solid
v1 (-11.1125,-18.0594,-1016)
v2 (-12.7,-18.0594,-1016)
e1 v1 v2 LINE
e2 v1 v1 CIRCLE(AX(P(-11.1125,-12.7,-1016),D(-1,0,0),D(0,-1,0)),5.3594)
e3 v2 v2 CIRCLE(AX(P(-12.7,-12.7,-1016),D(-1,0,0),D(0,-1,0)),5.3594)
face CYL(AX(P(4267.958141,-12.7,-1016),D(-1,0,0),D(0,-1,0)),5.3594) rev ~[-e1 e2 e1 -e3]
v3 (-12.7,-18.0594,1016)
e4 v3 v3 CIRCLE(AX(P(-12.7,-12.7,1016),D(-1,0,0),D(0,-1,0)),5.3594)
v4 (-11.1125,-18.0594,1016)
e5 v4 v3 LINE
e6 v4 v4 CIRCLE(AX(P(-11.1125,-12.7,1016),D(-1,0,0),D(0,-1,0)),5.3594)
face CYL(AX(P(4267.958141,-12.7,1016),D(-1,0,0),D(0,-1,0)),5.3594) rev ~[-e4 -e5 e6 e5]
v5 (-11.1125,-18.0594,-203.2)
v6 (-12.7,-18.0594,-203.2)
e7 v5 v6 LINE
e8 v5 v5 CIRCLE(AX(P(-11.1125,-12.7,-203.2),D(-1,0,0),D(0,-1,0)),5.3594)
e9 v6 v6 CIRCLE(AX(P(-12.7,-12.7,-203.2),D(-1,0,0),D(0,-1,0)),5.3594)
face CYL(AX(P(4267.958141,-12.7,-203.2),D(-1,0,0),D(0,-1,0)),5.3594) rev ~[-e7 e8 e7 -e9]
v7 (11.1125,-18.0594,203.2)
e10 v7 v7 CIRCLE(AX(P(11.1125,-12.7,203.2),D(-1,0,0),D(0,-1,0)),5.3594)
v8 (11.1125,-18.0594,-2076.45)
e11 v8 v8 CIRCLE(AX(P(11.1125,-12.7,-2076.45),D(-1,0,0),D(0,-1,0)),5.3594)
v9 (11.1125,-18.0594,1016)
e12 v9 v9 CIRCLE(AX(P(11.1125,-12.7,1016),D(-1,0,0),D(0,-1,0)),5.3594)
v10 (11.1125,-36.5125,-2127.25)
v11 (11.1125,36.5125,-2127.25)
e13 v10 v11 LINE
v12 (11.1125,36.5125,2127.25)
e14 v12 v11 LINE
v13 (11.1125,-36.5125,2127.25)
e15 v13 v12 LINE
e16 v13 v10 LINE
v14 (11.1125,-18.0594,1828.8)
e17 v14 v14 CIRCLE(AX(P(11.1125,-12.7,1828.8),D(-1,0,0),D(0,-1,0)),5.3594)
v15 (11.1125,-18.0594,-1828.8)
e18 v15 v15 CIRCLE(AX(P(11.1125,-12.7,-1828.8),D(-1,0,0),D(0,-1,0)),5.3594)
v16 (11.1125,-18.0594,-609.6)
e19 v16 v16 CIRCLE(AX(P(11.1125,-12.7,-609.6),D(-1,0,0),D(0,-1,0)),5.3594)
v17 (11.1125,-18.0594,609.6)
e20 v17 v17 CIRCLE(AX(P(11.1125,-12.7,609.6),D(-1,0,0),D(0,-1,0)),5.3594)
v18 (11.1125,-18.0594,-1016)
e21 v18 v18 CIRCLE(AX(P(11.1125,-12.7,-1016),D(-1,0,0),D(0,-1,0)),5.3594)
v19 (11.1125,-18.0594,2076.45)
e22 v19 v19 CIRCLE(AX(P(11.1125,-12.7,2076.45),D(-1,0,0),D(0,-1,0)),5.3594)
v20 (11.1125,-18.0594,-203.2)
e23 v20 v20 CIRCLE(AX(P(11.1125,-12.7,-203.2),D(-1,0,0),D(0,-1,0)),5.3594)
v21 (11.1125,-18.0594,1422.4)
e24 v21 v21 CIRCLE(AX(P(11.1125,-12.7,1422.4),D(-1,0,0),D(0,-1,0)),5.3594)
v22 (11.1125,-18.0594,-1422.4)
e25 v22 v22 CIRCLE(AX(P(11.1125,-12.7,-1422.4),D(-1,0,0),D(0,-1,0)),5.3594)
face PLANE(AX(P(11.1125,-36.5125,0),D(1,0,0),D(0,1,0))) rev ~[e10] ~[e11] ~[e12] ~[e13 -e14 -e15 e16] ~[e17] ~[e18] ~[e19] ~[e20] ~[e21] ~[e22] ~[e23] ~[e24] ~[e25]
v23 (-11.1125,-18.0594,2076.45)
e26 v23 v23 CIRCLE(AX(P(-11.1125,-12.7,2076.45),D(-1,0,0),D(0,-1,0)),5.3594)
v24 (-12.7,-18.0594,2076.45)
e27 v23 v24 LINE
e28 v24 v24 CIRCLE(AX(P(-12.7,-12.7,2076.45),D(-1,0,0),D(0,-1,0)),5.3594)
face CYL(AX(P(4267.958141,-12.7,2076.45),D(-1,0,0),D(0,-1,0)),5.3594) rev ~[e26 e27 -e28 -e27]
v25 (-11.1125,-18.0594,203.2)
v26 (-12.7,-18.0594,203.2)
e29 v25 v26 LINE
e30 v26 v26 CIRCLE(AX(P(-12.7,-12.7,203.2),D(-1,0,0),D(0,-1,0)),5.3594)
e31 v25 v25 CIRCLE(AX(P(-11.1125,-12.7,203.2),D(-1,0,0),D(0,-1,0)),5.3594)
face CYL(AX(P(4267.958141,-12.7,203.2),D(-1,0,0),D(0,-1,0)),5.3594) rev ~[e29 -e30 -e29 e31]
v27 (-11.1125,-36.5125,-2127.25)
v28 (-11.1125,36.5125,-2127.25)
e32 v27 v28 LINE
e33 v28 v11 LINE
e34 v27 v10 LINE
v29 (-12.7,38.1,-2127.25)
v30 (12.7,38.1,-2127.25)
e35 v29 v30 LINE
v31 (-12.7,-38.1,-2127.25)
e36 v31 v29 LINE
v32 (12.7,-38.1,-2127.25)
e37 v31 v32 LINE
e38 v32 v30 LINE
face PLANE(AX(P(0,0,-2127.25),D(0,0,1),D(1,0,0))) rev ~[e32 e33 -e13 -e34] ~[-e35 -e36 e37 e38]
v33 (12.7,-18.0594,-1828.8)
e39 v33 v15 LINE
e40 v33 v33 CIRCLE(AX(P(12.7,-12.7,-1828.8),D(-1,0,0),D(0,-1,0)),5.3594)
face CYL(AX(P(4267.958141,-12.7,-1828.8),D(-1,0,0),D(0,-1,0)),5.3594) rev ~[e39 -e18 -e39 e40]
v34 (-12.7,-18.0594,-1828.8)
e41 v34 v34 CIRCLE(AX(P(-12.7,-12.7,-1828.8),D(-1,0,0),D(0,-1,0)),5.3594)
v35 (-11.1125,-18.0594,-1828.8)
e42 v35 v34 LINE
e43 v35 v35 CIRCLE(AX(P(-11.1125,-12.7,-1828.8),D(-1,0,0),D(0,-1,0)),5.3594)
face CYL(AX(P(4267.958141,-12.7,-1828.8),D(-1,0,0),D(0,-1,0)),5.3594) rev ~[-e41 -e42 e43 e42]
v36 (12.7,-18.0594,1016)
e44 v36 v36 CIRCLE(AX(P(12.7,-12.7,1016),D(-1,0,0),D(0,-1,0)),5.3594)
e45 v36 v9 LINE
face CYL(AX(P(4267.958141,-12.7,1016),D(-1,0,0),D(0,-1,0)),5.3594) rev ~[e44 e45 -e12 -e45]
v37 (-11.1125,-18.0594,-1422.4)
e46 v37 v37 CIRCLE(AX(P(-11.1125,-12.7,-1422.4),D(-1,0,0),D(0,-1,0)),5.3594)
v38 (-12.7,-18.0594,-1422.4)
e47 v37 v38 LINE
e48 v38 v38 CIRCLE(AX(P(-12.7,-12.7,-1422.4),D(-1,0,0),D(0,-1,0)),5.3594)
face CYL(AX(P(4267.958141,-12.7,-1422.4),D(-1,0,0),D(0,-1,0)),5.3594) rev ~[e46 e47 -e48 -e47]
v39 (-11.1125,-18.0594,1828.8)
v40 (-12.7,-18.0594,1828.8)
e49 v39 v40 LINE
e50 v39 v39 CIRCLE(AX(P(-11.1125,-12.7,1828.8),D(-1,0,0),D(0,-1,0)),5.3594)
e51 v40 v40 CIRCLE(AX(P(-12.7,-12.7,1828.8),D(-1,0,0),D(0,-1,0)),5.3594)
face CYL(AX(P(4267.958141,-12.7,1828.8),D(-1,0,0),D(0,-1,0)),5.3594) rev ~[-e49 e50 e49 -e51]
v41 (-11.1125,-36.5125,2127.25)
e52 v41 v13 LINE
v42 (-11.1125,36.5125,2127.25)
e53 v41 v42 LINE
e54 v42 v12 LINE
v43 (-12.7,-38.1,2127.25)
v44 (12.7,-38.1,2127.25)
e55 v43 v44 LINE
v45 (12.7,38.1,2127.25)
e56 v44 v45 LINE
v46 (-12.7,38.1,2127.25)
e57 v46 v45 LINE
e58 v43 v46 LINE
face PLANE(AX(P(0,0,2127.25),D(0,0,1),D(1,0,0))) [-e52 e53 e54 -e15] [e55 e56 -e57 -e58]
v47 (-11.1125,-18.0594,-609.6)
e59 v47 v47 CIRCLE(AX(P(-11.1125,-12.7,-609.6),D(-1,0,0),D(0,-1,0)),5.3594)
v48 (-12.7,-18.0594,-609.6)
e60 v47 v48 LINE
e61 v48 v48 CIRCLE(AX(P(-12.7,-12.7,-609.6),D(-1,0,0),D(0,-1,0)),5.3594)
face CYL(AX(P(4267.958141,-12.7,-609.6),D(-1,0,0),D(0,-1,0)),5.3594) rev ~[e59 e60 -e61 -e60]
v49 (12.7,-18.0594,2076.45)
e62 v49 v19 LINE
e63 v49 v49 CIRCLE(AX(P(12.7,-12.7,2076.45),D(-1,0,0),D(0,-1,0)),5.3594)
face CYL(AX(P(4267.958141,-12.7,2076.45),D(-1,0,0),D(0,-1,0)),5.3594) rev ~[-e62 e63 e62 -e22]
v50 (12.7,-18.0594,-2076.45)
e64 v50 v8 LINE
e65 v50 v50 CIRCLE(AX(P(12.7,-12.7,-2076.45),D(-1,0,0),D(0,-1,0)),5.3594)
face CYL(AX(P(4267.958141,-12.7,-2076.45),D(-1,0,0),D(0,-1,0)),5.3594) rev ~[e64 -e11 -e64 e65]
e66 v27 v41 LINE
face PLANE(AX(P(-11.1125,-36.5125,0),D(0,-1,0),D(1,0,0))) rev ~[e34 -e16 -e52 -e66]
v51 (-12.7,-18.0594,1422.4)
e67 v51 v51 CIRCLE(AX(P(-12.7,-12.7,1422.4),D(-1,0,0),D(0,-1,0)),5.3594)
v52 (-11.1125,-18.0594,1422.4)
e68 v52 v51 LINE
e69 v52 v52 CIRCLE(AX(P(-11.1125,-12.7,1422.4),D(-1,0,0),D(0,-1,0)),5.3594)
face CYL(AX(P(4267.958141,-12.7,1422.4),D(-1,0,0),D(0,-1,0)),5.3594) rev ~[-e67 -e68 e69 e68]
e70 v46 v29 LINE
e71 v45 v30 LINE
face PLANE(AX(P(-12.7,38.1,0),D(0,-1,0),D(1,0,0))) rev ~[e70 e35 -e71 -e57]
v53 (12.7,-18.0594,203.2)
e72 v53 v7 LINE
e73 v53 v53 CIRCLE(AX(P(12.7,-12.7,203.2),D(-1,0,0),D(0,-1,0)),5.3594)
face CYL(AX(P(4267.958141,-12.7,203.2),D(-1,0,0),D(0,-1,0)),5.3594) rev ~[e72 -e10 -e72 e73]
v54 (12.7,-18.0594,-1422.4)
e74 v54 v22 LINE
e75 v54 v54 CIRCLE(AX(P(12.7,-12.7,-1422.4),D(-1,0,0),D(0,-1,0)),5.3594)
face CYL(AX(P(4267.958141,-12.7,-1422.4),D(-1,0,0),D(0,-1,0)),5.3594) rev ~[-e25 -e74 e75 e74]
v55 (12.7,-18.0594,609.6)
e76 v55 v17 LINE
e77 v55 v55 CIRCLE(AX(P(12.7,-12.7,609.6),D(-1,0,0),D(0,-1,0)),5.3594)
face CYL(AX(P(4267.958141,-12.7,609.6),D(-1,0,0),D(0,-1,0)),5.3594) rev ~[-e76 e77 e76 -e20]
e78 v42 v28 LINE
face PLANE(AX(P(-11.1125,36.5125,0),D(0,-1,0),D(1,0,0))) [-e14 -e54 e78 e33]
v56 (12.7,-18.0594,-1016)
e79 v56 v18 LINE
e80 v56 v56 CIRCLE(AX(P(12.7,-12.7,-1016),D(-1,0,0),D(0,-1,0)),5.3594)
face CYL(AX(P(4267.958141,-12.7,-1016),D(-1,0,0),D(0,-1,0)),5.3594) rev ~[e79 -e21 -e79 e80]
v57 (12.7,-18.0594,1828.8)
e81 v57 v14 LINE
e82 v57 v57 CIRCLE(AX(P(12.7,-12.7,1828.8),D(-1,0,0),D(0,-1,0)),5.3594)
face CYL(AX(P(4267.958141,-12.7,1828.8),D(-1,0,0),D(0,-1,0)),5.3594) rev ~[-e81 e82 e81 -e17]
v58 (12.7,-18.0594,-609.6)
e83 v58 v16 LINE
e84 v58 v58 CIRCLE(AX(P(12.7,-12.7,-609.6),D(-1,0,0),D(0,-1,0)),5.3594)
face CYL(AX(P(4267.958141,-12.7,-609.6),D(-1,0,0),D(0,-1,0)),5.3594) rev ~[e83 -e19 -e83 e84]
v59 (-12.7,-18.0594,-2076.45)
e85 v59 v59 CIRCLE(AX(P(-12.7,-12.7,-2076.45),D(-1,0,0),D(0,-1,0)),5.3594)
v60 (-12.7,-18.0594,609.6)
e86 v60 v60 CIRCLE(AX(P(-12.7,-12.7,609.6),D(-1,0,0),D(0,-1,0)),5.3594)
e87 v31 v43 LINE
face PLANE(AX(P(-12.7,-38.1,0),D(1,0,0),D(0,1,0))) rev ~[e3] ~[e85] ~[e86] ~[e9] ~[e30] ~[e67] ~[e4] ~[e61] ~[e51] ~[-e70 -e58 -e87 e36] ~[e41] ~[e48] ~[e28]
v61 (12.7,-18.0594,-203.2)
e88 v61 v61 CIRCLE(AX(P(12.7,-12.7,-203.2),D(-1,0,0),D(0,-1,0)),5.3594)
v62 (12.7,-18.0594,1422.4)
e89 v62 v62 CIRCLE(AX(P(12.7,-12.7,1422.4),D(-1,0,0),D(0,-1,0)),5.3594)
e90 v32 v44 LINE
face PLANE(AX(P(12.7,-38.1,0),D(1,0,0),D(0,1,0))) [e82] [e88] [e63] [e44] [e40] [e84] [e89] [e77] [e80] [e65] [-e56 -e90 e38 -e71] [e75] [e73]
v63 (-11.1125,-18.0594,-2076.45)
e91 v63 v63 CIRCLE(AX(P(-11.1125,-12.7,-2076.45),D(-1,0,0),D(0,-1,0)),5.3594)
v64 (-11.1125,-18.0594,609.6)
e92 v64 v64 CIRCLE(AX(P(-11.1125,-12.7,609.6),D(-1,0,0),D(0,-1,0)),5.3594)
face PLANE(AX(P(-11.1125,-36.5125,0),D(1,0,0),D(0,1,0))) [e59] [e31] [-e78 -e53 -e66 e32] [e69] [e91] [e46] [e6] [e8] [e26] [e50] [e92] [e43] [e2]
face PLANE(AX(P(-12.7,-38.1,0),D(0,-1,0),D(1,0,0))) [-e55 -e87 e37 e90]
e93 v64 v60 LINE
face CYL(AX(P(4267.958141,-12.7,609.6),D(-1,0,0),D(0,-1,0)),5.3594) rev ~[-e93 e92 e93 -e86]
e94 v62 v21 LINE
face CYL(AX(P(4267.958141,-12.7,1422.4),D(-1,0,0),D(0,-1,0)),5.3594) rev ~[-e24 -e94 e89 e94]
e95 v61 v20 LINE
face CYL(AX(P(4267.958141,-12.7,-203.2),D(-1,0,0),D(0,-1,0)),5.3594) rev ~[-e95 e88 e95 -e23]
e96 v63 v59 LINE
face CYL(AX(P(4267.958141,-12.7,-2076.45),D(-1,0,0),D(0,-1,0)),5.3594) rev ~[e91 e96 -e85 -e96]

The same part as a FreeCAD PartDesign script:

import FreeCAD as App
import Part
import Sketcher
Q = App.Units.Quantity

doc = App.newDocument("Part")
params = doc.addObject("Spreadsheet::Sheet", "Params")
for row, (alias, value) in enumerate([
    ("sketch1_width", "1 in"),
    ("sketch1_height", "3 in"),
    ("sketch1_width2", "0.875 in"),
    ("sketch1_height2", "2.875 in"),
    ("pad1_length", "167.5 in"),
    ("sketch2_diameter", "0.422 in"),
    ("hole_diameter", "0.422 in"),
], start=1):
    params.set(f"A{row}", alias)
    params.set(f"B{row}", "=" + value)
    params.setAlias(f"B{row}", alias)

body = doc.addObject("PartDesign::Body", "Body")

# Sketch on XY plane
sketch1 = doc.addObject("Sketcher::SketchObject", "Sketch")
body.addObject(sketch1)
sketch1.AttachmentSupport = (doc.XY_Plane, [""])
sketch1.MapMode = "FlatFace"
sketch1.addGeometry(Part.LineSegment(App.Vector(-13, 38, 0), App.Vector(-13, -38, 0)), False)
sketch1.addGeometry(Part.LineSegment(App.Vector(-13, -38, 0), App.Vector(13, -38, 0)), False)
sketch1.addGeometry(Part.LineSegment(App.Vector(13, -38, 0), App.Vector(13, 38, 0)), False)
sketch1.addGeometry(Part.LineSegment(App.Vector(13, 38, 0), App.Vector(-13, 38, 0)), False)
sketch1.addGeometry(Part.LineSegment(App.Vector(11, -37, 0), App.Vector(-11, -37, 0)), False)
sketch1.addGeometry(Part.LineSegment(App.Vector(-11, -37, 0), App.Vector(-11, 37, 0)), False)
sketch1.addGeometry(Part.LineSegment(App.Vector(-11, 37, 0), App.Vector(11, 37, 0)), False)
sketch1.addGeometry(Part.LineSegment(App.Vector(11, 37, 0), App.Vector(11, -37, 0)), False)
sketch1.addConstraint(Sketcher.Constraint("Coincident", 0, 2, 1, 1))
sketch1.addConstraint(Sketcher.Constraint("Coincident", 1, 2, 2, 1))
sketch1.addConstraint(Sketcher.Constraint("Coincident", 2, 2, 3, 1))
sketch1.addConstraint(Sketcher.Constraint("Coincident", 3, 2, 0, 1))
sketch1.addConstraint(Sketcher.Constraint("Coincident", 4, 2, 5, 1))
sketch1.addConstraint(Sketcher.Constraint("Coincident", 5, 2, 6, 1))
sketch1.addConstraint(Sketcher.Constraint("Coincident", 6, 2, 7, 1))
sketch1.addConstraint(Sketcher.Constraint("Coincident", 7, 2, 4, 1))
sketch1.addConstraint(Sketcher.Constraint("Vertical", 0))
sketch1.addConstraint(Sketcher.Constraint("Horizontal", 1))
sketch1.addConstraint(Sketcher.Constraint("Vertical", 2))
sketch1.addConstraint(Sketcher.Constraint("Horizontal", 3))
sketch1.addConstraint(Sketcher.Constraint("Horizontal", 4))
sketch1.addConstraint(Sketcher.Constraint("Vertical", 5))
sketch1.addConstraint(Sketcher.Constraint("Horizontal", 6))
sketch1.addConstraint(Sketcher.Constraint("Vertical", 7))
sketch1.addConstraint(Sketcher.Constraint("Symmetric", 0, 2, 2, 2, -1, 1))
sketch1.addConstraint(Sketcher.Constraint("Symmetric", 4, 2, 6, 2, -1, 1))
sketch1.addConstraint(Sketcher.Constraint("DistanceX", 1, 1, 1, 2, Q("1 in")))
sketch1.addConstraint(Sketcher.Constraint("DistanceY", 0, 2, 0, 1, Q("3 in")))
sketch1.addConstraint(Sketcher.Constraint("DistanceX", 4, 2, 4, 1, Q("0.875 in")))
sketch1.addConstraint(Sketcher.Constraint("DistanceY", 5, 1, 5, 2, Q("2.875 in")))
sketch1.setExpression("Constraints[18]", "Params.sketch1_width")
sketch1.setExpression("Constraints[19]", "Params.sketch1_height")
sketch1.setExpression("Constraints[20]", "Params.sketch1_width2")
sketch1.setExpression("Constraints[21]", "Params.sketch1_height2")
pad1 = doc.addObject("PartDesign::Pad", "Pad")
body.addObject(pad1)
pad1.Profile = sketch1
pad1.setExpression("Length", "Params.pad1_length")
pad1.Midplane = True

# Sketch on YZ plane
sketch2 = doc.addObject("Sketcher::SketchObject", "Sketch001")
body.addObject(sketch2)
sketch2.AttachmentSupport = (doc.YZ_Plane, [""])
sketch2.MapMode = "FlatFace"
sketch2.AttachmentOffset = App.Placement(App.Vector(0, 0, 0.5 * 25.4), App.Rotation())
sketch2.addGeometry(Part.Circle(App.Vector(-13, 2076, 0), App.Vector(0, 0, 1), 5), False)
sketch2.addGeometry(Part.Circle(App.Vector(-13, 1829, 0), App.Vector(0, 0, 1), 5), False)
sketch2.addGeometry(Part.Circle(App.Vector(-13, 1422, 0), App.Vector(0, 0, 1), 5), False)
sketch2.addGeometry(Part.Circle(App.Vector(-13, 1016, 0), App.Vector(0, 0, 1), 5), False)
sketch2.addGeometry(Part.Circle(App.Vector(-13, 610, 0), App.Vector(0, 0, 1), 5), False)
sketch2.addGeometry(Part.Circle(App.Vector(-13, 203, 0), App.Vector(0, 0, 1), 5), False)
sketch2.addGeometry(Part.Circle(App.Vector(-13, -203, 0), App.Vector(0, 0, 1), 5), False)
sketch2.addGeometry(Part.Circle(App.Vector(-13, -610, 0), App.Vector(0, 0, 1), 5), False)
sketch2.addGeometry(Part.Circle(App.Vector(-13, -1016, 0), App.Vector(0, 0, 1), 5), False)
sketch2.addGeometry(Part.Circle(App.Vector(-13, -1422, 0), App.Vector(0, 0, 1), 5), False)
sketch2.addGeometry(Part.Circle(App.Vector(-13, -1829, 0), App.Vector(0, 0, 1), 5), False)
sketch2.addGeometry(Part.Circle(App.Vector(-13, -2076, 0), App.Vector(0, 0, 1), 5), False)
sketch2.addConstraint(Sketcher.Constraint("Equal", 0, 1))
sketch2.addConstraint(Sketcher.Constraint("Equal", 1, 2))
sketch2.addConstraint(Sketcher.Constraint("Equal", 2, 3))
sketch2.addConstraint(Sketcher.Constraint("Equal", 3, 4))
sketch2.addConstraint(Sketcher.Constraint("Equal", 4, 5))
sketch2.addConstraint(Sketcher.Constraint("Equal", 5, 6))
sketch2.addConstraint(Sketcher.Constraint("Equal", 6, 7))
sketch2.addConstraint(Sketcher.Constraint("Equal", 7, 8))
sketch2.addConstraint(Sketcher.Constraint("Equal", 8, 9))
sketch2.addConstraint(Sketcher.Constraint("Equal", 9, 10))
sketch2.addConstraint(Sketcher.Constraint("Equal", 10, 11))
sketch2.addConstraint(Sketcher.Constraint("Symmetric", 5, 3, 6, 3, -1))
sketch2.addConstraint(Sketcher.Constraint("Symmetric", 4, 3, 7, 3, -1))
sketch2.addConstraint(Sketcher.Constraint("Symmetric", 3, 3, 8, 3, -1))
sketch2.addConstraint(Sketcher.Constraint("Symmetric", 2, 3, 9, 3, -1))
sketch2.addConstraint(Sketcher.Constraint("Symmetric", 1, 3, 10, 3, -1))
sketch2.addConstraint(Sketcher.Constraint("Symmetric", 0, 3, 11, 3, -1))
sketch2.addConstraint(Sketcher.Constraint("Vertical", 0, 3, 1, 3))
sketch2.addConstraint(Sketcher.Constraint("Vertical", 1, 3, 2, 3))
sketch2.addConstraint(Sketcher.Constraint("Vertical", 2, 3, 3, 3))
sketch2.addConstraint(Sketcher.Constraint("Vertical", 3, 3, 4, 3))
sketch2.addConstraint(Sketcher.Constraint("Vertical", 4, 3, 5, 3))
sketch2.addConstraint(Sketcher.Constraint("Diameter", 0, Q("0.422 in")))
sketch2.addConstraint(Sketcher.Constraint("DistanceY", -1, 1, 1, 3, Q("72 in")))
sketch2.addConstraint(Sketcher.Constraint("DistanceY", -1, 1, 2, 3, Q("56 in")))
sketch2.addConstraint(Sketcher.Constraint("DistanceY", -1, 1, 3, 3, Q("40 in")))
sketch2.addConstraint(Sketcher.Constraint("DistanceY", -1, 1, 4, 3, Q("24 in")))
sketch2.addConstraint(Sketcher.Constraint("DistanceY", -1, 1, 5, 3, Q("8 in")))
sketch2.addConstraint(Sketcher.Constraint("DistanceX", 0, 3, -1, 1, Q("0.5 in")))
sketch2.addConstraint(Sketcher.Constraint("DistanceY", -1, 1, 0, 3, Q("81.75 in")))
sketch2.setExpression("Constraints[22]", "Params.sketch2_diameter")
doc.recompute()
hole = doc.addObject("PartDesign::Hole", "Hole")
body.addObject(hole)
hole.Profile = sketch2
hole.ThreadType = "None"
hole.setExpression("Diameter", "Params.hole_diameter")
hole.DepthType = "ThroughAll"

doc.recompute()
